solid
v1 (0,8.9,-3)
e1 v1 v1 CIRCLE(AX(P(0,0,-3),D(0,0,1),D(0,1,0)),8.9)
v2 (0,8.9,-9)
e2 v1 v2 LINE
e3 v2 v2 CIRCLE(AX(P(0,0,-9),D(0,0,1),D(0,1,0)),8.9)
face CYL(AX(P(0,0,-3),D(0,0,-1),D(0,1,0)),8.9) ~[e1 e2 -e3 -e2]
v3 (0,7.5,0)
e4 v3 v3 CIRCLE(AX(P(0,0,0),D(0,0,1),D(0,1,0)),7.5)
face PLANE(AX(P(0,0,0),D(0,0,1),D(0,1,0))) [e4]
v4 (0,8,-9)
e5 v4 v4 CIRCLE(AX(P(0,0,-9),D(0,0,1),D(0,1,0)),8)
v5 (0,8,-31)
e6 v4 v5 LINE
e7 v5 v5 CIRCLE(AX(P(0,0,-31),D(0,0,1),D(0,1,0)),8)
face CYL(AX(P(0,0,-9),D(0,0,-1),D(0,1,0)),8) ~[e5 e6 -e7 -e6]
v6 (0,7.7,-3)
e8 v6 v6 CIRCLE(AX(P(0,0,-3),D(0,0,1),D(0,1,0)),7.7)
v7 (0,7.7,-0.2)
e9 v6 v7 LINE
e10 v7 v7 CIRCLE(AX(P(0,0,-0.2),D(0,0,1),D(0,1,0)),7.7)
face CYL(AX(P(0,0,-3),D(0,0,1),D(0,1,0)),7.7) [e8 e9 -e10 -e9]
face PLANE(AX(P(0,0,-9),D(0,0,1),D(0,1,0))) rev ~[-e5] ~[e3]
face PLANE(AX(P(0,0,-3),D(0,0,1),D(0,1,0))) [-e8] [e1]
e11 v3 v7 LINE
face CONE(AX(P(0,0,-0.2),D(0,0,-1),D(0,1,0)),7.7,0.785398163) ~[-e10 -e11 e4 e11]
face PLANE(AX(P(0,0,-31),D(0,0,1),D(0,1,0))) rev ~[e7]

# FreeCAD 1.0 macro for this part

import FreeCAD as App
import Part
import Sketcher
from FreeCAD import Vector
Q = App.Units.Quantity


def edges_at(feature, points):
    """Names of the edges that pass closest to the given points."""
    edges = feature.Shape.Edges
    near = lambda p: min(range(len(edges)), key=lambda i: edges[i].distToShape(Part.Vertex(*p))[0])
    return sorted({f"Edge{near(p) + 1}" for p in points})


def add_polygon(sketch, points):
    """Adds a closed chain of lines whose ends are joined by coincident constraints."""
    first, n = sketch.GeometryCount, len(points)
    for a, b in zip(points, points[1:] + points[:1]):
        sketch.addGeometry(Part.LineSegment(App.Vector(*a, 0), App.Vector(*b, 0)), False)
    for i in range(n):
        sketch.addConstraint(Sketcher.Constraint("Coincident", first + i, 2, first + (i + 1) % n, 1))

doc = App.newDocument("Part")
body = doc.addObject("PartDesign::Body", "Body")

sketch1 = doc.addObject("Sketcher::SketchObject", "Sketch")
body.addObject(sketch1)
sketch1.AttachmentSupport = (doc.YZ_Plane, [""])
sketch1.MapMode = "FlatFace"
add_polygon(sketch1, [(8.9, -9), (8.9, -3), (7.7, -3), (7.7, 0), (0, 0), (0, -31), (8, -31), (8, -9)])
sketch1.addConstraint([
    Sketcher.Constraint("Vertical", 0),
    Sketcher.Constraint("Horizontal", 1),
    Sketcher.Constraint("Vertical", 2),
    Sketcher.Constraint("Horizontal", 3),
    Sketcher.Constraint("Vertical", 4),
    Sketcher.Constraint("Horizontal", 5),
    Sketcher.Constraint("Vertical", 6),
    Sketcher.Constraint("Horizontal", 7),
    Sketcher.Constraint("Coincident", 3, 2, -1, 1),
    Sketcher.Constraint("DistanceX", 5, 1, 5, 2, Q("8 mm")),
    Sketcher.Constraint("DistanceY", 2, 1, 2, 2, Q("3 mm")),
    Sketcher.Constraint("DistanceY", 4, 2, 4, 1, Q("31 mm")),
    Sketcher.Constraint("DistanceX", 3, 2, 3, 1, Q("7.7 mm")),
    Sketcher.Constraint("DistanceY", 6, 2, -1, 1, Q("9 mm")),
    Sketcher.Constraint("DistanceX", -1, 1, 0, 2, Q("8.9 mm")),
])
revolution = doc.addObject("PartDesign::Revolution", "Revolution")
body.addObject(revolution)
revolution.Profile = sketch1
revolution.ReferenceAxis = (sketch1, ["V_Axis"])
revolution.Angle = 360
doc.recompute()

chamfer = doc.addObject("PartDesign::Chamfer", "Chamfer")
body.addObject(chamfer)
chamfer.Base = (revolution, edges_at(revolution, [(0, -7.7, 0)]))
chamfer.Size = 0.2

doc.recompute()
